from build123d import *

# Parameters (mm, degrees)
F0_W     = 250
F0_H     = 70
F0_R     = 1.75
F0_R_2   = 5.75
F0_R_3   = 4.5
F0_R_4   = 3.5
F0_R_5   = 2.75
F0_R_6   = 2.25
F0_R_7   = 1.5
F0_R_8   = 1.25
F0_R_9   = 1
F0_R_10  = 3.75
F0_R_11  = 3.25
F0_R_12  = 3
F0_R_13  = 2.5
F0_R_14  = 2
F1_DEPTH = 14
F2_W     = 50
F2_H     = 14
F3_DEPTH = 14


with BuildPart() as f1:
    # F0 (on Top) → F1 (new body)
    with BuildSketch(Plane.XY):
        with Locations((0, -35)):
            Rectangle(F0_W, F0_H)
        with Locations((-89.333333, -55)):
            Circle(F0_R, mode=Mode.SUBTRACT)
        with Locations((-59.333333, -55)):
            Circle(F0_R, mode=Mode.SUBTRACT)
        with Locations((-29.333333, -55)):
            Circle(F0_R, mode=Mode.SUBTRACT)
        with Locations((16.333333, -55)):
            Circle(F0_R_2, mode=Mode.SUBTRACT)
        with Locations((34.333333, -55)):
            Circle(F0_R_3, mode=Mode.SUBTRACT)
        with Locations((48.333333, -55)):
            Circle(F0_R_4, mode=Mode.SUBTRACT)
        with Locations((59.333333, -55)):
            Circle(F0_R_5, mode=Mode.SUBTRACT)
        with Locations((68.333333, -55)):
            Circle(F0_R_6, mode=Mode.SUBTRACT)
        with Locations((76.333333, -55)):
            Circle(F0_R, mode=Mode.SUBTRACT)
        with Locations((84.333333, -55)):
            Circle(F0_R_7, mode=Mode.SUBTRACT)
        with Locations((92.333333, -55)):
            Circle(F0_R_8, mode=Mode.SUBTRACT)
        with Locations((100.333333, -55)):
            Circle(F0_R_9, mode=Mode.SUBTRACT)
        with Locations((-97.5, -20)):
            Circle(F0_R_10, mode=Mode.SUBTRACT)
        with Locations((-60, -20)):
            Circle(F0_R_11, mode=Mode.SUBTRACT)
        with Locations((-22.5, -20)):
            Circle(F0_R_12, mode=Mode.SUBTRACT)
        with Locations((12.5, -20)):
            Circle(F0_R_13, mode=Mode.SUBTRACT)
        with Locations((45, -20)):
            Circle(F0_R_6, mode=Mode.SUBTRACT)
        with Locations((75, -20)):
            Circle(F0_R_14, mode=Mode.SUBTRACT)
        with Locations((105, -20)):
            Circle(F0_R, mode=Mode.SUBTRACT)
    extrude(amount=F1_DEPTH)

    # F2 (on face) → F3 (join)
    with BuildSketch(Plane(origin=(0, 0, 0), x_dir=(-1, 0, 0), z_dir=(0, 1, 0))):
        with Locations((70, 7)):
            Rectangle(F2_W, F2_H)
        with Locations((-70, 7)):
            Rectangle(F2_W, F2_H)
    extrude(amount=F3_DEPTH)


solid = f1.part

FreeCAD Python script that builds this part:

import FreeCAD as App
import Part
import Sketcher

V = App.Vector
Q = App.Units.Quantity


def add_polygon(sketch, points):
    """Adds a closed chain of lines whose ends are joined by coincident constraints."""
    first, n = sketch.GeometryCount, len(points)
    for a, b in zip(points, points[1:] + points[:1]):
        sketch.addGeometry(Part.LineSegment(App.Vector(*a, 0), App.Vector(*b, 0)), False)
    for i in range(n):
        sketch.addConstraint(Sketcher.Constraint("Coincident", first + i, 2, first + (i + 1) % n, 1))

doc = App.newDocument("Part")
params = doc.addObject("Spreadsheet::Sheet", "Params")
for row, (alias, value) in enumerate([
    ("sketch1_diameter", "9 mm"),
    ("sketch1_diameter2", "7 mm"),
    ("sketch1_diameter3", "3 mm"),
    ("sketch1_diameter4", "2 mm"),
    ("sketch1_diameter5", "6 mm"),
    ("pad1_length", "14 mm"),
    ("sketch2_width", "50 mm"),
    ("sketch2_height", "14 mm"),
    ("pad2_length", "14 mm"),
], start=1):
    params.set(f"A{row}", alias)
    params.set(f"B{row}", "=" + value)
    params.setAlias(f"B{row}", alias)

body = doc.addObject("PartDesign::Body", "Body")

# Sketch on XY plane
sketch1 = doc.addObject("Sketcher::SketchObject", "Sketch")
body.addObject(sketch1)
sketch1.AttachmentSupport = (doc.XY_Plane, [""])
sketch1.MapMode = "FlatFace"
add_polygon(sketch1, [(-125, 0), (-125, -70), (125, -70), (125, 0)])  # lines 0-3
sketch1.addGeometry(Part.Circle(V(-89.3, -55, 0), V(0, 0, 1), 1.8), False)  # 4
sketch1.addGeometry(Part.Circle(V(-59.3, -55, 0), V(0, 0, 1), 1.8), False)  # 5
sketch1.addGeometry(Part.Circle(V(-29.3, -55, 0), V(0, 0, 1), 1.8), False)  # 6
sketch1.addGeometry(Part.Circle(V(16.3, -55, 0), V(0, 0, 1), 5.8), False)  # 7
sketch1.addGeometry(Part.Circle(V(34.3, -55, 0), V(0, 0, 1), 4.5), False)  # 8
sketch1.addGeometry(Part.Circle(V(48.3, -55, 0), V(0, 0, 1), 3.5), False)  # 9
sketch1.addGeometry(Part.Circle(V(59.3, -55, 0), V(0, 0, 1), 2.8), False)  # 10
sketch1.addGeometry(Part.Circle(V(68.3, -55, 0), V(0, 0, 1), 2.2), False)  # 11
sketch1.addGeometry(Part.Circle(V(76.3, -55, 0), V(0, 0, 1), 1.8), False)  # 12
sketch1.addGeometry(Part.Circle(V(84.3, -55, 0), V(0, 0, 1), 1.5), False)  # 13
sketch1.addGeometry(Part.Circle(V(92.3, -55, 0), V(0, 0, 1), 1.2), False)  # 14
sketch1.addGeometry(Part.Circle(V(100.3, -55, 0), V(0, 0, 1), 1), False)  # 15
sketch1.addGeometry(Part.Circle(V(-97.5, -20, 0), V(0, 0, 1), 3.8), False)  # 16
sketch1.addGeometry(Part.Circle(V(-60, -20, 0), V(0, 0, 1), 3.2), False)  # 17
sketch1.addGeometry(Part.Circle(V(-22.5, -20, 0), V(0, 0, 1), 3), False)  # 18
sketch1.addGeometry(Part.Circle(V(12.5, -20, 0), V(0, 0, 1), 2.5), False)  # 19
sketch1.addGeometry(Part.Circle(V(45, -20, 0), V(0, 0, 1), 2.2), False)  # 20
sketch1.addGeometry(Part.Circle(V(75, -20, 0), V(0, 0, 1), 2), False)  # 21
sketch1.addGeometry(Part.Circle(V(105, -20, 0), V(0, 0, 1), 1.8), False)  # 22
sketch1.addConstraint(Sketcher.Constraint("Vertical", 0))
sketch1.addConstraint(Sketcher.Constraint("Horizontal", 1))
sketch1.addConstraint(Sketcher.Constraint("Vertical", 2))
sketch1.addConstraint(Sketcher.Constraint("Horizontal", 3))
sketch1.addConstraint(Sketcher.Constraint("Equal", 4, 5))
sketch1.addConstraint(Sketcher.Constraint("Equal", 5, 6))
sketch1.addConstraint(Sketcher.Constraint("Equal", 6, 12))
sketch1.addConstraint(Sketcher.Constraint("Equal", 11, 20))
sketch1.addConstraint(Sketcher.Constraint("Equal", 12, 22))
sketch1.addConstraint(Sketcher.Constraint("Symmetric", 2, 2, 3, 2, -1, 1))
sketch1.addConstraint(Sketcher.Constraint("Symmetric", 5, 3, 10, 3, -2))
sketch1.addConstraint(Sketcher.Constraint("Horizontal", 4, 3, 5, 3))
sketch1.addConstraint(Sketcher.Constraint("Horizontal", 5, 3, 6, 3))
sketch1.addConstraint(Sketcher.Constraint("Horizontal", 6, 3, 7, 3))
sketch1.addConstraint(Sketcher.Constraint("Horizontal", 7, 3, 8, 3))
sketch1.addConstraint(Sketcher.Constraint("Horizontal", 8, 3, 9, 3))
sketch1.addConstraint(Sketcher.Constraint("Horizontal", 10, 3, 11, 3))
sketch1.addConstraint(Sketcher.Constraint("Horizontal", 11, 3, 12, 3))
sketch1.addConstraint(Sketcher.Constraint("Horizontal", 12, 3, 13, 3))
sketch1.addConstraint(Sketcher.Constraint("Horizontal", 13, 3, 14, 3))
sketch1.addConstraint(Sketcher.Constraint("Horizontal", 14, 3, 15, 3))
sketch1.addConstraint(Sketcher.Constraint("Horizontal", 16, 3, 17, 3))
sketch1.addConstraint(Sketcher.Constraint("Horizontal", 17, 3, 18, 3))
sketch1.addConstraint(Sketcher.Constraint("Horizontal", 18, 3, 19, 3))
sketch1.addConstraint(Sketcher.Constraint("Horizontal", 19, 3, 20, 3))
sketch1.addConstraint(Sketcher.Constraint("Horizontal", 20, 3, 21, 3))
sketch1.addConstraint(Sketcher.Constraint("Horizontal", 21, 3, 22, 3))
sketch1.addConstraint(Sketcher.Constraint("Diameter", 8, Q("9 mm")))
sketch1.addConstraint(Sketcher.Constraint("Diameter", 9, Q("7 mm")))
sketch1.addConstraint(Sketcher.Constraint("Diameter", 13, Q("3 mm")))
sketch1.addConstraint(Sketcher.Constraint("Diameter", 15, Q("2 mm")))
sketch1.addConstraint(Sketcher.Constraint("Diameter", 18, Q("6 mm")))
sketch1.addConstraint(Sketcher.Constraint("Diameter", 19, Q("5 mm")))
sketch1.addConstraint(Sketcher.Constraint("Diameter", 21, Q("4 mm")))
sketch1.addConstraint(Sketcher.Constraint("Diameter", 4, Q("3.5 mm")))
sketch1.addConstraint(Sketcher.Constraint("Diameter", 7, Q("11.5 mm")))
sketch1.addConstraint(Sketcher.Constraint("Diameter", 10, Q("5.5 mm")))
sketch1.addConstraint(Sketcher.Constraint("Diameter", 11, Q("4.5 mm")))
sketch1.addConstraint(Sketcher.Constraint("Diameter", 14, Q("2.5 mm")))
sketch1.addConstraint(Sketcher.Constraint("Diameter", 16, Q("7.5 mm")))
sketch1.addConstraint(Sketcher.Constraint("Diameter", 17, Q("6.5 mm")))
sketch1.addConstraint(Sketcher.Constraint("DistanceX", 1, 1, 1, 2, Q("250 mm")))
sketch1.addConstraint(Sketcher.Constraint("DistanceY", 0, 2, 0, 1, Q("70 mm")))
sketch1.addConstraint(Sketcher.Constraint("DistanceY", 4, 3, -1, 1, Q("55 mm")))
sketch1.addConstraint(Sketcher.Constraint("DistanceY", 16, 3, -1, 1, Q("20 mm")))
sketch1.addConstraint(Sketcher.Constraint("DistanceX", 17, 3, -1, 1, Q("60 mm")))
sketch1.addConstraint(Sketcher.Constraint("DistanceX", -1, 1, 20, 3, Q("45 mm")))
sketch1.addConstraint(Sketcher.Constraint("DistanceX", -1, 1, 21, 3, Q("75 mm")))
sketch1.addConstraint(Sketcher.Constraint("DistanceX", -1, 1, 22, 3, Q("105 mm")))
sketch1.addConstraint(Sketcher.Constraint("DistanceX", 4, 3, 5, 3, Q("30 mm")))
sketch1.addConstraint(Sketcher.Constraint("DistanceX", 5, 3, 6, 3, Q("30 mm")))
sketch1.addConstraint(Sketcher.Constraint("DistanceX", 7, 3, 8, 3, Q("18 mm")))
sketch1.addConstraint(Sketcher.Constraint("DistanceX", 8, 3, 9, 3, Q("14 mm")))
sketch1.addConstraint(Sketcher.Constraint("DistanceX", 9, 3, 10, 3, Q("11 mm")))
sketch1.addConstraint(Sketcher.Constraint("DistanceX", 10, 3, 11, 3, Q("9 mm")))
sketch1.addConstraint(Sketcher.Constraint("DistanceX", 11, 3, 12, 3, Q("8 mm")))
sketch1.addConstraint(Sketcher.Constraint("DistanceX", 12, 3, 13, 3, Q("8 mm")))
sketch1.addConstraint(Sketcher.Constraint("DistanceX", 13, 3, 14, 3, Q("8 mm")))
sketch1.addConstraint(Sketcher.Constraint("DistanceX", 14, 3, 15, 3, Q("8 mm")))
sketch1.addConstraint(Sketcher.Constraint("DistanceX", 18, 3, 19, 3, Q("35 mm")))
sketch1.addConstraint(Sketcher.Constraint("DistanceX", 16, 3, -1, 1, Q("97.5 mm")))
sketch1.addConstraint(Sketcher.Constraint("DistanceX", 18, 3, -1, 1, Q("22.5 mm")))
sketch1.addConstraint(Sketcher.Constraint("DistanceX", 4, 3, -1, 1, Q("89.333333 mm")))
sketch1.setExpression("Constraints[31]", "Params.sketch1_diameter")
sketch1.setExpression("Constraints[32]", "Params.sketch1_diameter2")
sketch1.setExpression("Constraints[33]", "Params.sketch1_diameter3")
sketch1.setExpression("Constraints[34]", "Params.sketch1_diameter4")
sketch1.setExpression("Constraints[35]", "Params.sketch1_diameter5")
pad1 = doc.addObject("PartDesign::Pad", "Pad")
body.addObject(pad1)
pad1.Profile = sketch1
pad1.setExpression("Length", "Params.pad1_length")

# Sketch on XZ plane
sketch2 = doc.addObject("Sketcher::SketchObject", "Sketch001")
body.addObject(sketch2)
sketch2.AttachmentSupport = (doc.XZ_Plane, [""])
sketch2.MapMode = "FlatFace"
add_polygon(sketch2, [(-45, 14), (-45, 0), (-95, 0), (-95, 14)])  # lines 0-3
add_polygon(sketch2, [(95, 14), (95, 0), (45, 0), (45, 14)])  # lines 4-7
sketch2.addConstraint(Sketcher.Constraint("Vertical", 0))
sketch2.addConstraint(Sketcher.Constraint("Horizontal", 1))
sketch2.addConstraint(Sketcher.Constraint("Vertical", 2))
sketch2.addConstraint(Sketcher.Constraint("Horizontal", 3))
sketch2.addConstraint(Sketcher.Constraint("Vertical", 4))
sketch2.addConstraint(Sketcher.Constraint("Horizontal", 5))
sketch2.addConstraint(Sketcher.Constraint("Vertical", 6))
sketch2.addConstraint(Sketcher.Constraint("Horizontal", 7))
sketch2.addConstraint(Sketcher.Constraint("Symmetric", 1, 2, 4, 2, -1, 1))
sketch2.addConstraint(Sketcher.Constraint("Symmetric", 0, 2, 5, 2, -2))
sketch2.addConstraint(Sketcher.Constraint("Horizontal", 3, 2, 6, 2))
sketch2.addConstraint(Sketcher.Constraint("DistanceX", 1, 2, 1, 1, Q("50 mm")))
sketch2.addConstraint(Sketcher.Constraint("DistanceY", 0, 2, 0, 1, Q("14 mm")))
sketch2.addConstraint(Sketcher.Constraint("DistanceX", 0, 2, -1, 1, Q("45 mm")))
sketch2.setExpression("Constraints[19]", "Params.sketch2_width")
sketch2.setExpression("Constraints[20]", "Params.sketch2_height")
pad2 = doc.addObject("PartDesign::Pad", "Pad001")
body.addObject(pad2)
pad2.Profile = sketch2
pad2.setExpression("Length", "Params.pad2_length")
pad2.Reversed = True

doc.recompute()
